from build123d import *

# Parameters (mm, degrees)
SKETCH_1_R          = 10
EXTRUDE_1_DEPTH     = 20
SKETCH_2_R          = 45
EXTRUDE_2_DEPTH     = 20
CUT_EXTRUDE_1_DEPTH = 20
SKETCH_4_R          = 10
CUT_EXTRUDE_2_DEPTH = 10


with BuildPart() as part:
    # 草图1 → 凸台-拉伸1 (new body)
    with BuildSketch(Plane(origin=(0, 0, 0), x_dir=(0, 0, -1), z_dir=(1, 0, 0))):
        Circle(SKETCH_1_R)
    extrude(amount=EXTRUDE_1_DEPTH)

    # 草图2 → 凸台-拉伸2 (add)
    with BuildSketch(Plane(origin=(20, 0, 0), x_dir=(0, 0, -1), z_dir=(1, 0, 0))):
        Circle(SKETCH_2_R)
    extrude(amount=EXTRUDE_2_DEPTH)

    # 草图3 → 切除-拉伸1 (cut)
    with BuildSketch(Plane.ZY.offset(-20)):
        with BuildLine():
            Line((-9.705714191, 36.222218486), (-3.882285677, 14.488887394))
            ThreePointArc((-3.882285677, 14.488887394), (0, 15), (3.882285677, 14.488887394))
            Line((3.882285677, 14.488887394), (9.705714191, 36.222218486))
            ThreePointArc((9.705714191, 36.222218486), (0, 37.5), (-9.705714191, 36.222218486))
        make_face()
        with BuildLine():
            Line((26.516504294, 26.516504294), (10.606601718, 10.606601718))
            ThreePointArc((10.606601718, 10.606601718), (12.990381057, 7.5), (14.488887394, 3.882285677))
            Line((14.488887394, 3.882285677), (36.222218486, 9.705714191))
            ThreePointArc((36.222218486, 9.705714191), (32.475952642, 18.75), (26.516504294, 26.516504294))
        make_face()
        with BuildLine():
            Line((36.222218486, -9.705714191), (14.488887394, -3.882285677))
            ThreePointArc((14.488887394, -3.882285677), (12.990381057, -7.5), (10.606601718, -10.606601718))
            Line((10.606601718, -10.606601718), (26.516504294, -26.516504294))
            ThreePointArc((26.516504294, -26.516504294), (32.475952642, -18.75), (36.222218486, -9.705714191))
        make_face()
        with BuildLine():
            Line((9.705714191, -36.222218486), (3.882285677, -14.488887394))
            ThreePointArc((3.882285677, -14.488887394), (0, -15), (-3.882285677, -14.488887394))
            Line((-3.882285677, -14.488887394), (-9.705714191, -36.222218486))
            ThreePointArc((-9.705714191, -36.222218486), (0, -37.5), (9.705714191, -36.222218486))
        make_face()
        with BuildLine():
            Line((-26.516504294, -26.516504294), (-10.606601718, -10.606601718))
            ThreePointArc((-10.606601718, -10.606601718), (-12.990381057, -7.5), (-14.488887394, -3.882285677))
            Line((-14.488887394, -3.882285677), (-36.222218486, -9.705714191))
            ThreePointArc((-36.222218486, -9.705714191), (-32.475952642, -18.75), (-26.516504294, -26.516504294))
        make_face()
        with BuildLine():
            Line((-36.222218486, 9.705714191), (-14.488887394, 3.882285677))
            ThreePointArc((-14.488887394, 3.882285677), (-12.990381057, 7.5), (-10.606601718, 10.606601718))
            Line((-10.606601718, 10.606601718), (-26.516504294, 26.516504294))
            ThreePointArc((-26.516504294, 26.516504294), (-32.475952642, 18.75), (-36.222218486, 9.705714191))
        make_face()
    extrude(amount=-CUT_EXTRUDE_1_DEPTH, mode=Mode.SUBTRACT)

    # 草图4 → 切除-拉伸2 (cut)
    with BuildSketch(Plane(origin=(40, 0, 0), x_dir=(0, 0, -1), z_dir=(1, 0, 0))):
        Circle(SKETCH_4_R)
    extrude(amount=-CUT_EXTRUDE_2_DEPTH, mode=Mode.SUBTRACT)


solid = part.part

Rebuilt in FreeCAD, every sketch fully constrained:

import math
import FreeCAD as App
import Part
import Sketcher

V = App.Vector
Q = App.Units.Quantity

doc = App.newDocument("Part")
body = doc.addObject("PartDesign::Body", "Body")

sketch1 = body.newObject("Sketcher::SketchObject", "Sketch")
sketch1.AttachmentSupport = (doc.getObject("YZ_Plane"), [""])
sketch1.MapMode = "FlatFace"
sketch1.addGeometry(Part.Circle(V(0, 0, 0), V(0, 0, 1), 10), False)
sketch1.addConstraint([
    Sketcher.Constraint("Coincident", 0, 3, -1, 1),
    Sketcher.Constraint("Diameter", 0, Q("20 mm")),
])
pad1 = body.newObject("PartDesign::Pad", "Pad")
pad1.Profile = sketch1
pad1.Length = 20

sketch2 = body.newObject("Sketcher::SketchObject", "Sketch001")
sketch2.AttachmentSupport = (doc.getObject("YZ_Plane"), [""])
sketch2.MapMode = "FlatFace"
sketch2.AttachmentOffset = App.Placement(V(0, 0, 20), App.Rotation())
sketch2.addGeometry(Part.Circle(V(0, 0, 0), V(0, 0, 1), 45), False)
sketch2.addConstraint([
    Sketcher.Constraint("Coincident", 0, 3, -1, 1),
    Sketcher.Constraint("Diameter", 0, Q("90 mm")),
])
pad2 = body.newObject("PartDesign::Pad", "Pad001")
pad2.Profile = sketch2
pad2.Length = 20

sketch3 = body.newObject("Sketcher::SketchObject", "Sketch002")
sketch3.AttachmentSupport = (doc.getObject("YZ_Plane"), [""])
sketch3.MapMode = "FlatFace"
sketch3.AttachmentOffset = App.Placement(V(0, 0, 20), App.Rotation())
sketch3.addGeometry([
    Part.LineSegment(V(36, -10, 0), V(14, -4, 0)),
    Part.ArcOfCircle(Part.Circle(V(0, 0, 0), V(0, 0, 1), 15), math.radians(-15), math.radians(15)),
    Part.LineSegment(V(14, 4, 0), V(36, 10, 0)),
    Part.ArcOfCircle(Part.Circle(V(0, 0, 0), V(0, 0, 1), 38), math.radians(-15), math.radians(15)),
    Part.LineSegment(V(27, 27, 0), V(11, 11, 0)),
    Part.ArcOfCircle(Part.Circle(V(0, 0, 0), V(0, 0, 1), 15), math.radians(45), math.radians(75)),
    Part.LineSegment(V(4, 14, 0), V(10, 36, 0)),
    Part.ArcOfCircle(Part.Circle(V(0, 0, 0), V(0, 0, 1), 37), math.radians(45), math.radians(75)),
    Part.LineSegment(V(-10, 36, 0), V(-4, 14, 0)),
    Part.ArcOfCircle(Part.Circle(V(0, 0, 0), V(0, 0, 1), 15), math.radians(105), math.radians(135)),
    Part.LineSegment(V(-11, 11, 0), V(-27, 27, 0)),
    Part.ArcOfCircle(Part.Circle(V(0, 0, 0), V(0, 0, 1), 37), math.radians(105), math.radians(135)),
    Part.LineSegment(V(-36, 10, 0), V(-14, 4, 0)),
    Part.ArcOfCircle(Part.Circle(V(0, 0, 0), V(0, 0, 1), 15), math.radians(165), math.radians(195)),
    Part.LineSegment(V(-14, -4, 0), V(-36, -10, 0)),
    Part.ArcOfCircle(Part.Circle(V(0, 0, 0), V(0, 0, 1), 38), math.radians(165), math.radians(195)),
    Part.LineSegment(V(-27, -27, 0), V(-11, -11, 0)),
    Part.ArcOfCircle(Part.Circle(V(0, 0, 0), V(0, 0, 1), 15), math.radians(-135), math.radians(-105)),
    Part.LineSegment(V(-4, -14, 0), V(-10, -36, 0)),
    Part.ArcOfCircle(Part.Circle(V(0, 0, 0), V(0, 0, 1), 37), math.radians(-135), math.radians(-105)),
    Part.LineSegment(V(10, -36, 0), V(4, -14, 0)),
    Part.ArcOfCircle(Part.Circle(V(0, 0, 0), V(0, 0, 1), 15), math.radians(-75), math.radians(-45)),
    Part.LineSegment(V(11, -11, 0), V(27, -27, 0)),
    Part.ArcOfCircle(Part.Circle(V(0, 0, 0), V(0, 0, 1), 37), math.radians(-75), math.radians(-45)),
], False)
sketch3.addConstraint([
    Sketcher.Constraint("Coincident", 0, 2, 1, 1),
    Sketcher.Constraint("Coincident", 1, 2, 2, 1),
    Sketcher.Constraint("Coincident", 2, 2, 3, 2),
    Sketcher.Constraint("Coincident", 3, 1, 0, 1),
    Sketcher.Constraint("Coincident", 4, 2, 5, 1),
    Sketcher.Constraint("Coincident", 5, 2, 6, 1),
    Sketcher.Constraint("Coincident", 6, 2, 7, 2),
    Sketcher.Constraint("Coincident", 7, 1, 4, 1),
    Sketcher.Constraint("Coincident", 8, 2, 9, 1),
    Sketcher.Constraint("Coincident", 9, 2, 10, 1),
    Sketcher.Constraint("Coincident", 10, 2, 11, 2),
    Sketcher.Constraint("Coincident", 11, 1, 8, 1),
    Sketcher.Constraint("Coincident", 12, 2, 13, 1),
    Sketcher.Constraint("Coincident", 13, 2, 14, 1),
    Sketcher.Constraint("Coincident", 14, 2, 15, 2),
    Sketcher.Constraint("Coincident", 15, 1, 12, 1),
    Sketcher.Constraint("Coincident", 16, 2, 17, 1),
    Sketcher.Constraint("Coincident", 17, 2, 18, 1),
    Sketcher.Constraint("Coincident", 18, 2, 19, 2),
    Sketcher.Constraint("Coincident", 19, 1, 16, 1),
    Sketcher.Constraint("Coincident", 20, 2, 21, 1),
    Sketcher.Constraint("Coincident", 21, 2, 22, 1),
    Sketcher.Constraint("Coincident", 22, 2, 23, 2),
    Sketcher.Constraint("Coincident", 23, 1, 20, 1),
    Sketcher.Constraint("Coincident", 1, 3, -1, 1),
    Sketcher.Constraint("Coincident", 3, 3, -1, 1),
    Sketcher.Constraint("Coincident", 5, 3, -1, 1),
    Sketcher.Constraint("Coincident", 7, 3, -1, 1),
    Sketcher.Constraint("Coincident", 9, 3, -1, 1),
    Sketcher.Constraint("Coincident", 11, 3, -1, 1),
    Sketcher.Constraint("Coincident", 13, 3, -1, 1),
    Sketcher.Constraint("Coincident", 15, 3, -1, 1),
    Sketcher.Constraint("Coincident", 17, 3, -1, 1),
    Sketcher.Constraint("Coincident", 19, 3, -1, 1),
    Sketcher.Constraint("Coincident", 21, 3, -1, 1),
    Sketcher.Constraint("Coincident", 23, 3, -1, 1),
    Sketcher.Constraint("Equal", 1, 5),
    Sketcher.Constraint("Equal", 3, 7),
    Sketcher.Constraint("Equal", 5, 9),
    Sketcher.Constraint("Equal", 7, 11),
    Sketcher.Constraint("Equal", 9, 13),
    Sketcher.Constraint("Equal", 11, 15),
    Sketcher.Constraint("Equal", 13, 17),
    Sketcher.Constraint("Equal", 15, 19),
    Sketcher.Constraint("Equal", 17, 21),
    Sketcher.Constraint("Equal", 19, 23),
    Sketcher.Constraint("Perpendicular", 0, 6),
    Sketcher.Constraint("Perpendicular", 2, 8),
    Sketcher.Constraint("Perpendicular", 4, 10),
    Sketcher.Constraint("Perpendicular", 6, 12),
    Sketcher.Constraint("Perpendicular", 8, 14),
    Sketcher.Constraint("Perpendicular", 10, 16),
    Sketcher.Constraint("Perpendicular", 12, 18),
    Sketcher.Constraint("Perpendicular", 14, 20),
    Sketcher.Constraint("Perpendicular", 16, 22),
    Sketcher.Constraint("Horizontal", 5, 2, 8, 2),
    Sketcher.Constraint("Horizontal", 4, 2, 9, 2),
    Sketcher.Constraint("Horizontal", 7, 1, 10, 2),
    Sketcher.Constraint("Horizontal", 6, 2, 11, 1),
    Sketcher.Constraint("Horizontal", 1, 2, 12, 2),
    Sketcher.Constraint("Horizontal", 0, 2, 13, 2),
    Sketcher.Constraint("Horizontal", 17, 2, 20, 2),
    Sketcher.Constraint("Horizontal", 16, 2, 21, 2),
    Sketcher.Constraint("Vertical", 0, 2, 1, 2),
    Sketcher.Constraint("Vertical", 9, 2, 16, 2),
    Sketcher.Constraint("Vertical", 8, 2, 17, 2),
    Sketcher.Constraint("Radius", 1, Q("15 mm")),
    Sketcher.Constraint("Radius", 3, Q("37.5 mm")),
    Sketcher.Constraint("Angle", 0, Q("165 deg")),
    Sketcher.Constraint("DistanceY", 0, 2, 2, 2, Q("13.588 mm")),
    Sketcher.Constraint("DistanceX", 11, 1, 5, 2, Q("13.588 mm")),
    Sketcher.Constraint("DistanceX", -1, 1, 4, 2, Q("10.606602 mm")),
])
pocket1 = body.newObject("PartDesign::Pocket", "Pocket")
pocket1.Profile = sketch3
pocket1.Length = 20
pocket1.Reversed = True

sketch4 = body.newObject("Sketcher::SketchObject", "Sketch003")
sketch4.AttachmentSupport = (doc.getObject("YZ_Plane"), [""])
sketch4.MapMode = "FlatFace"
sketch4.AttachmentOffset = App.Placement(V(0, 0, 40), App.Rotation())
sketch4.addGeometry(Part.Circle(V(0, 0, 0), V(0, 0, 1), 10), False)
sketch4.addConstraint([
    Sketcher.Constraint("Coincident", 0, 3, -1, 1),
    Sketcher.Constraint("Diameter", 0, Q("20 mm")),
])
pocket2 = body.newObject("PartDesign::Pocket", "Pocket001")
pocket2.Profile = sketch4
pocket2.Length = 10

doc.recompute()
